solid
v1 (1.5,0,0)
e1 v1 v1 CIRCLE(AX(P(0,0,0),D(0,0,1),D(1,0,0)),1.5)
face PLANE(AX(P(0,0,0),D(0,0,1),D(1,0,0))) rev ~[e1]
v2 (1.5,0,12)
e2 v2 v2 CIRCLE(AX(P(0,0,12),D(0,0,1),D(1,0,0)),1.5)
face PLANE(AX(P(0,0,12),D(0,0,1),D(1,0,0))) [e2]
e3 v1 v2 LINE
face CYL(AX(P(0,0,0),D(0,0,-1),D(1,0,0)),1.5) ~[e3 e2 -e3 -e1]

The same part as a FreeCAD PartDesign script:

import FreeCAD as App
import Part
import Sketcher
from FreeCAD import Vector

doc = App.newDocument("Part")
body = doc.addObject("PartDesign::Body", "Body")

# Sketch on XY plane
sketch1 = doc.addObject("Sketcher::SketchObject", "Sketch")
body.addObject(sketch1)
sketch1.AttachmentSupport = (doc.XY_Plane, [""])
sketch1.MapMode = "FlatFace"
sketch1.addGeometry(Part.Circle(Vector(0, 0, 0), Vector(0, 0, 1), 1.5), False)
sketch1.addConstraint([
    Sketcher.Constraint("Coincident", 0, 3, -1, 1),
    Sketcher.Constraint("Diameter", 0, 3.0),
])
pad1 = doc.addObject("PartDesign::Pad", "Pad")
body.addObject(pad1)
pad1.Profile = sketch1
pad1.Length = 12

doc.recompute()
